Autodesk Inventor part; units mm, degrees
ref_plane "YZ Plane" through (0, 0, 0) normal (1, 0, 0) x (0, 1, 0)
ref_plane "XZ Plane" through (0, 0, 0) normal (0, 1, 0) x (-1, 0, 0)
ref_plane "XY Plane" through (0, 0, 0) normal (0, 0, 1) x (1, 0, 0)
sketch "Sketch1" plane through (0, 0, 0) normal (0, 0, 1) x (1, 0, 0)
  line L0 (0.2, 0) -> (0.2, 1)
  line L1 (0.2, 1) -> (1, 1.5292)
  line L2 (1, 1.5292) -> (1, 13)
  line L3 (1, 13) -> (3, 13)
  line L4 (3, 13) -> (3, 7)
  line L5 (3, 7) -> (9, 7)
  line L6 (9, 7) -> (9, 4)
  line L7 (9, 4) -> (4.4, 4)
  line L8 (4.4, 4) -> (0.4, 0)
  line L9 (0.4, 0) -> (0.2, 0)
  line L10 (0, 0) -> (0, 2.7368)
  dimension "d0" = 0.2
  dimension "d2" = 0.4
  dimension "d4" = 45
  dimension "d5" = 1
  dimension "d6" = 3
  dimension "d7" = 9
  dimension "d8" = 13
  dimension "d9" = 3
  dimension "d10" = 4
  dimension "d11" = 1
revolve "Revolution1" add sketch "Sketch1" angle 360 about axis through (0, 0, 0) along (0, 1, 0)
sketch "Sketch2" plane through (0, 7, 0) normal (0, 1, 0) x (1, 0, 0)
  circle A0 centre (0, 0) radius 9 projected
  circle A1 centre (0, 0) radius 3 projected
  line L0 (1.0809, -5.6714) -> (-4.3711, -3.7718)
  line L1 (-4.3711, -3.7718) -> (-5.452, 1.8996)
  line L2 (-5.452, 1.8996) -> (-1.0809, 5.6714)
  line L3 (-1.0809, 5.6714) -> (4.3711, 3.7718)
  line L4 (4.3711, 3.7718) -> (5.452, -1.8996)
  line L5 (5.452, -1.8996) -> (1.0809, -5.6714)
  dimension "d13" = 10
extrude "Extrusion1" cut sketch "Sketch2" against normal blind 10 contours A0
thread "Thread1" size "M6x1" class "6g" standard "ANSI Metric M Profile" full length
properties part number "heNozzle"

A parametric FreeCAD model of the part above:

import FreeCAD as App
import Part
import Sketcher
Q = App.Units.Quantity

doc = App.newDocument("Part")
body = doc.addObject("PartDesign::Body", "Body")

sketch1 = body.newObject("Sketcher::SketchObject", "Sketch")
sketch1.AttachmentSupport = (doc.getObject("XY_Plane"), [""])
sketch1.MapMode = "FlatFace"
sketch1.addGeometry(Part.LineSegment(App.Vector(0.2, 1, 0), App.Vector(0.2, 0, 0)), False)
sketch1.addGeometry(Part.LineSegment(App.Vector(0.2, 0, 0), App.Vector(0.4, 0, 0)), False)
sketch1.addGeometry(Part.LineSegment(App.Vector(0.4, 0, 0), App.Vector(4.4, 4, 0)), False)
sketch1.addGeometry(Part.LineSegment(App.Vector(4.4, 4, 0), App.Vector(9, 4, 0)), False)
sketch1.addGeometry(Part.LineSegment(App.Vector(9, 4, 0), App.Vector(9, 7, 0)), False)
sketch1.addGeometry(Part.LineSegment(App.Vector(9, 7, 0), App.Vector(3, 7, 0)), False)
sketch1.addGeometry(Part.LineSegment(App.Vector(3, 7, 0), App.Vector(3, 13, 0)), False)
sketch1.addGeometry(Part.LineSegment(App.Vector(3, 13, 0), App.Vector(1, 13, 0)), False)
sketch1.addGeometry(Part.LineSegment(App.Vector(1, 13, 0), App.Vector(1, 1.53, 0)), False)
sketch1.addGeometry(Part.LineSegment(App.Vector(1, 1.53, 0), App.Vector(0.2, 1, 0)), False)
sketch1.addConstraint(Sketcher.Constraint("Coincident", 0, 2, 1, 1))
sketch1.addConstraint(Sketcher.Constraint("Coincident", 1, 2, 2, 1))
sketch1.addConstraint(Sketcher.Constraint("Coincident", 2, 2, 3, 1))
sketch1.addConstraint(Sketcher.Constraint("Coincident", 3, 2, 4, 1))
sketch1.addConstraint(Sketcher.Constraint("Coincident", 4, 2, 5, 1))
sketch1.addConstraint(Sketcher.Constraint("Coincident", 5, 2, 6, 1))
sketch1.addConstraint(Sketcher.Constraint("Coincident", 6, 2, 7, 1))
sketch1.addConstraint(Sketcher.Constraint("Coincident", 7, 2, 8, 1))
sketch1.addConstraint(Sketcher.Constraint("Coincident", 8, 2, 9, 1))
sketch1.addConstraint(Sketcher.Constraint("Coincident", 9, 2, 0, 1))
sketch1.addConstraint(Sketcher.Constraint("Vertical", 0))
sketch1.addConstraint(Sketcher.Constraint("Horizontal", 1))
sketch1.addConstraint(Sketcher.Constraint("Horizontal", 3))
sketch1.addConstraint(Sketcher.Constraint("Vertical", 4))
sketch1.addConstraint(Sketcher.Constraint("Horizontal", 5))
sketch1.addConstraint(Sketcher.Constraint("Vertical", 6))
sketch1.addConstraint(Sketcher.Constraint("Horizontal", 7))
sketch1.addConstraint(Sketcher.Constraint("Vertical", 8))
sketch1.addConstraint(Sketcher.Constraint("PointOnObject", 0, 2, -1))
sketch1.addConstraint(Sketcher.Constraint("Equal", 5, 6))
sketch1.addConstraint(Sketcher.Constraint("DistanceY", 0, 2, 0, 1, Q("1 mm")))
sketch1.addConstraint(Sketcher.Constraint("DistanceY", 4, 1, 4, 2, Q("3 mm")))
sketch1.addConstraint(Sketcher.Constraint("Angle", 2, Q("45 deg")))
sketch1.addConstraint(Sketcher.Constraint("DistanceX", 1, 1, 1, 2, Q("0.2 mm")))
sketch1.addConstraint(Sketcher.Constraint("DistanceY", -1, 1, 2, 2, Q("4 mm")))
sketch1.addConstraint(Sketcher.Constraint("DistanceX", -1, 1, 3, 2, Q("9 mm")))
sketch1.addConstraint(Sketcher.Constraint("DistanceX", -1, 1, 5, 2, Q("3 mm")))
sketch1.addConstraint(Sketcher.Constraint("DistanceX", -1, 1, 7, 2, Q("1 mm")))
sketch1.addConstraint(Sketcher.Constraint("DistanceX", -1, 1, 0, 2, Q("0.2 mm")))
sketch1.addConstraint(Sketcher.Constraint("DistanceY", 8, 2, 8, 1, Q("11.4708 mm")))
revolution = body.newObject("PartDesign::Revolution", "Revolution")
revolution.Profile = sketch1
revolution.ReferenceAxis = (sketch1, ["V_Axis"])
revolution.Angle = 360

sketch2 = body.newObject("Sketcher::SketchObject", "Sketch001")
sketch2.AttachmentSupport = (doc.getObject("XZ_Plane"), [""])
sketch2.MapMode = "FlatFace"
sketch2.AttachmentOffset = App.Placement(App.Vector(0, 0, -7), App.Rotation())
sketch2.addGeometry(Part.Circle(App.Vector(0, 0, 0), App.Vector(0, 0, 1), 9), False)
sketch2.addGeometry(Part.LineSegment(App.Vector(5, 2, 0), App.Vector(1, 6, 0)), False)
sketch2.addGeometry(Part.LineSegment(App.Vector(1, 6, 0), App.Vector(-4, 4, 0)), False)
sketch2.addGeometry(Part.LineSegment(App.Vector(-4, 4, 0), App.Vector(-5, -2, 0)), False)
sketch2.addGeometry(Part.LineSegment(App.Vector(-5, -2, 0), App.Vector(-1, -6, 0)), False)
sketch2.addGeometry(Part.LineSegment(App.Vector(-1, -6, 0), App.Vector(4, -4, 0)), False)
sketch2.addGeometry(Part.LineSegment(App.Vector(4, -4, 0), App.Vector(5, 2, 0)), False)
sketch2.addConstraint(Sketcher.Constraint("Coincident", 1, 2, 2, 1))
sketch2.addConstraint(Sketcher.Constraint("Coincident", 2, 2, 3, 1))
sketch2.addConstraint(Sketcher.Constraint("Coincident", 3, 2, 4, 1))
sketch2.addConstraint(Sketcher.Constraint("Coincident", 4, 2, 5, 1))
sketch2.addConstraint(Sketcher.Constraint("Coincident", 5, 2, 6, 1))
sketch2.addConstraint(Sketcher.Constraint("Coincident", 6, 2, 1, 1))
sketch2.addConstraint(Sketcher.Constraint("Coincident", 0, 3, -1, 1))
sketch2.addConstraint(Sketcher.Constraint("Symmetric", 1, 2, 4, 2, -1, 1))
sketch2.addConstraint(Sketcher.Constraint("Symmetric", 2, 2, 5, 2, -1, 1))
sketch2.addConstraint(Sketcher.Constraint("Symmetric", 3, 2, 6, 2, -1, 1))
sketch2.addConstraint(Sketcher.Constraint("Equal", 1, 2))
sketch2.addConstraint(Sketcher.Constraint("Equal", 2, 3))
sketch2.addConstraint(Sketcher.Constraint("Diameter", 0, Q("18 mm")))
sketch2.addConstraint(Sketcher.Constraint("Angle", 1, Q("139.2093 deg")))
sketch2.addConstraint(Sketcher.Constraint("Angle", 2, Q("-160.7905 deg")))
sketch2.addConstraint(Sketcher.Constraint("Angle", 3, Q("-100.7905 deg")))
sketch2.addConstraint(Sketcher.Constraint("DistanceX", -1, 1, 1, 2, Q("1.081 mm")))
pocket1 = body.newObject("PartDesign::Pocket", "Pocket")
pocket1.Profile = sketch2
pocket1.Length = 10
pocket1.Reversed = True

doc.recompute()
